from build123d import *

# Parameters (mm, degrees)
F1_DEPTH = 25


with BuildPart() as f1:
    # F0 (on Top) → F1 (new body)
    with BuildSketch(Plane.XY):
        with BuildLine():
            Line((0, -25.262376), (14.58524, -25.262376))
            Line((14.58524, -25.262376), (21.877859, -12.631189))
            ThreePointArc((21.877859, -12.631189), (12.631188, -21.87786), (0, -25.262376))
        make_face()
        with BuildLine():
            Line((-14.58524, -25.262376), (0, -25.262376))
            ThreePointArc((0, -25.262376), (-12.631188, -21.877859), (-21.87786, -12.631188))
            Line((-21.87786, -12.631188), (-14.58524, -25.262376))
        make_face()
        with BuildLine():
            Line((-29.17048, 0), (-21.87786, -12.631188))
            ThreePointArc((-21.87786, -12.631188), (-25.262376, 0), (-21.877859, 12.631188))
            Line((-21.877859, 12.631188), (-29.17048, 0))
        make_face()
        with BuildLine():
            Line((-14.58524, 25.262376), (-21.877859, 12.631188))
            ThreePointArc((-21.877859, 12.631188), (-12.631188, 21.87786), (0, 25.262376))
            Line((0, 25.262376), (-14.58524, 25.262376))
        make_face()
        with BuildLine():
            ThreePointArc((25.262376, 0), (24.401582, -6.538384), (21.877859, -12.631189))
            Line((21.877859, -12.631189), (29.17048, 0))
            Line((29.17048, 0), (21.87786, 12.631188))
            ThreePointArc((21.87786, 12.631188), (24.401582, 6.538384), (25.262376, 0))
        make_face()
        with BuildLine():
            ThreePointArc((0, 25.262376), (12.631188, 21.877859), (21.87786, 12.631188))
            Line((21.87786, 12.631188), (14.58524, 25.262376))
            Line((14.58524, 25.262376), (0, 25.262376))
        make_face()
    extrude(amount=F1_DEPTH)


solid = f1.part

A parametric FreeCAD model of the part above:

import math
import FreeCAD as App
import Part
import Sketcher
Q = App.Units.Quantity

doc = App.newDocument("Part")
body = doc.addObject("PartDesign::Body", "Body")
body.AllowCompound = True

# Sketch on XY plane
sketch1 = body.newObject("Sketcher::SketchObject", "Sketch")
sketch1.AttachmentSupport = (doc.getObject("XY_Plane"), [""])
sketch1.MapMode = "FlatFace"
sketch1.addGeometry([
    Part.LineSegment(App.Vector(0, -25, 0), App.Vector(15, -25, 0)),  # 0
    Part.LineSegment(App.Vector(15, -25, 0), App.Vector(22, -13, 0)),  # 1
    Part.ArcOfCircle(Part.Circle(App.Vector(0, 0, 0), App.Vector(0, 0, 1), 25), math.radians(-90), math.radians(-30)),  # 2
    Part.LineSegment(App.Vector(-15, -25, 0), App.Vector(0, -25, 0)),  # 3
    Part.ArcOfCircle(Part.Circle(App.Vector(0, 0, 0), App.Vector(0, 0, 1), 25), math.radians(-150), math.radians(-90)),  # 4
    Part.LineSegment(App.Vector(-22, -13, 0), App.Vector(-15, -25, 0)),  # 5
    Part.LineSegment(App.Vector(-29, 0, 0), App.Vector(-22, -13, 0)),  # 6
    Part.ArcOfCircle(Part.Circle(App.Vector(0, 0, 0), App.Vector(0, 0, 1), 25), math.radians(150), math.radians(210)),  # 7
    Part.LineSegment(App.Vector(-22, 13, 0), App.Vector(-29, 0, 0)),  # 8
    Part.LineSegment(App.Vector(-15, 25, 0), App.Vector(-22, 13, 0)),  # 9
    Part.ArcOfCircle(Part.Circle(App.Vector(0, 0, 0), App.Vector(0, 0, 1), 25), math.radians(90), math.radians(150)),  # 10
    Part.LineSegment(App.Vector(0, 25, 0), App.Vector(-15, 25, 0)),  # 11
    Part.ArcOfCircle(Part.Circle(App.Vector(0, 0, 0), App.Vector(0, 0, 1), 25), math.radians(-30), math.radians(0)),  # 12
    Part.LineSegment(App.Vector(22, -13, 0), App.Vector(29, 0, 0)),  # 13
    Part.LineSegment(App.Vector(29, 0, 0), App.Vector(22, 13, 0)),  # 14
    Part.ArcOfCircle(Part.Circle(App.Vector(0, 0, 0), App.Vector(0, 0, 1), 25), math.radians(0), math.radians(30)),  # 15
    Part.ArcOfCircle(Part.Circle(App.Vector(0, 0, 0), App.Vector(0, 0, 1), 25), math.radians(30), math.radians(90)),  # 16
    Part.LineSegment(App.Vector(22, 13, 0), App.Vector(15, 25, 0)),  # 17
    Part.LineSegment(App.Vector(15, 25, 0), App.Vector(0, 25, 0)),  # 18
], False)
sketch1.addConstraint([
    Sketcher.Constraint("Coincident", 0, 2, 1, 1),
    Sketcher.Constraint("Tangent", 1, 2, 2, 2),
    Sketcher.Constraint("Tangent", 2, 1, 0, 1),
    Sketcher.Constraint("Tangent", 3, 2, 4, 2),
    Sketcher.Constraint("Tangent", 4, 1, 5, 1),
    Sketcher.Constraint("Coincident", 5, 2, 3, 1),
    Sketcher.Constraint("Tangent", 6, 2, 7, 2),
    Sketcher.Constraint("Tangent", 7, 1, 8, 1),
    Sketcher.Constraint("Coincident", 8, 2, 6, 1),
    Sketcher.Constraint("Tangent", 9, 2, 10, 2),
    Sketcher.Constraint("Tangent", 10, 1, 11, 1),
    Sketcher.Constraint("Coincident", 11, 2, 9, 1),
    Sketcher.Constraint("Tangent", 12, 1, 13, 1),
    Sketcher.Constraint("Coincident", 13, 2, 14, 1),
    Sketcher.Constraint("Tangent", 14, 2, 15, 2),
    Sketcher.Constraint("Tangent", 15, 1, 12, 2),
    Sketcher.Constraint("Tangent", 16, 1, 17, 1),
    Sketcher.Constraint("Coincident", 17, 2, 18, 1),
    Sketcher.Constraint("Tangent", 18, 2, 16, 2),
    Sketcher.Constraint("Horizontal", 0),
    Sketcher.Constraint("Horizontal", 3),
    Sketcher.Constraint("Horizontal", 11),
    Sketcher.Constraint("Horizontal", 18),
    Sketcher.Constraint("Coincident", 2, 3, -1, 1),
    Sketcher.Constraint("Coincident", 4, 3, -1, 1),
    Sketcher.Constraint("Coincident", 7, 3, -1, 1),
    Sketcher.Constraint("Coincident", 10, 3, -1, 1),
    Sketcher.Constraint("Coincident", 15, 3, -1, 1),
    Sketcher.Constraint("Coincident", 16, 3, -1, 1),
    Sketcher.Constraint("Coincident", 6, 2, 4, 1),
    Sketcher.Constraint("Coincident", 9, 2, 7, 1),
    Sketcher.Constraint("Coincident", 12, 1, 1, 2),
    Sketcher.Constraint("Coincident", 16, 1, 14, 2),
    Sketcher.Constraint("Equal", 2, 10),
    Sketcher.Constraint("Equal", 4, 16),
    Sketcher.Constraint("Symmetric", 8, 2, 13, 2, -1, 1),
    Sketcher.Constraint("PointOnObject", 8, 2, -1),
    Sketcher.Constraint("PointOnObject", 15, 1, -1),
    Sketcher.Constraint("Equal", 5, 6),
    Sketcher.Constraint("Radius", 4, Q("25.26238 mm")),
])
pad1 = body.newObject("PartDesign::Pad", "Pad")
pad1.Profile = sketch1
pad1.Length = 25

doc.recompute()
